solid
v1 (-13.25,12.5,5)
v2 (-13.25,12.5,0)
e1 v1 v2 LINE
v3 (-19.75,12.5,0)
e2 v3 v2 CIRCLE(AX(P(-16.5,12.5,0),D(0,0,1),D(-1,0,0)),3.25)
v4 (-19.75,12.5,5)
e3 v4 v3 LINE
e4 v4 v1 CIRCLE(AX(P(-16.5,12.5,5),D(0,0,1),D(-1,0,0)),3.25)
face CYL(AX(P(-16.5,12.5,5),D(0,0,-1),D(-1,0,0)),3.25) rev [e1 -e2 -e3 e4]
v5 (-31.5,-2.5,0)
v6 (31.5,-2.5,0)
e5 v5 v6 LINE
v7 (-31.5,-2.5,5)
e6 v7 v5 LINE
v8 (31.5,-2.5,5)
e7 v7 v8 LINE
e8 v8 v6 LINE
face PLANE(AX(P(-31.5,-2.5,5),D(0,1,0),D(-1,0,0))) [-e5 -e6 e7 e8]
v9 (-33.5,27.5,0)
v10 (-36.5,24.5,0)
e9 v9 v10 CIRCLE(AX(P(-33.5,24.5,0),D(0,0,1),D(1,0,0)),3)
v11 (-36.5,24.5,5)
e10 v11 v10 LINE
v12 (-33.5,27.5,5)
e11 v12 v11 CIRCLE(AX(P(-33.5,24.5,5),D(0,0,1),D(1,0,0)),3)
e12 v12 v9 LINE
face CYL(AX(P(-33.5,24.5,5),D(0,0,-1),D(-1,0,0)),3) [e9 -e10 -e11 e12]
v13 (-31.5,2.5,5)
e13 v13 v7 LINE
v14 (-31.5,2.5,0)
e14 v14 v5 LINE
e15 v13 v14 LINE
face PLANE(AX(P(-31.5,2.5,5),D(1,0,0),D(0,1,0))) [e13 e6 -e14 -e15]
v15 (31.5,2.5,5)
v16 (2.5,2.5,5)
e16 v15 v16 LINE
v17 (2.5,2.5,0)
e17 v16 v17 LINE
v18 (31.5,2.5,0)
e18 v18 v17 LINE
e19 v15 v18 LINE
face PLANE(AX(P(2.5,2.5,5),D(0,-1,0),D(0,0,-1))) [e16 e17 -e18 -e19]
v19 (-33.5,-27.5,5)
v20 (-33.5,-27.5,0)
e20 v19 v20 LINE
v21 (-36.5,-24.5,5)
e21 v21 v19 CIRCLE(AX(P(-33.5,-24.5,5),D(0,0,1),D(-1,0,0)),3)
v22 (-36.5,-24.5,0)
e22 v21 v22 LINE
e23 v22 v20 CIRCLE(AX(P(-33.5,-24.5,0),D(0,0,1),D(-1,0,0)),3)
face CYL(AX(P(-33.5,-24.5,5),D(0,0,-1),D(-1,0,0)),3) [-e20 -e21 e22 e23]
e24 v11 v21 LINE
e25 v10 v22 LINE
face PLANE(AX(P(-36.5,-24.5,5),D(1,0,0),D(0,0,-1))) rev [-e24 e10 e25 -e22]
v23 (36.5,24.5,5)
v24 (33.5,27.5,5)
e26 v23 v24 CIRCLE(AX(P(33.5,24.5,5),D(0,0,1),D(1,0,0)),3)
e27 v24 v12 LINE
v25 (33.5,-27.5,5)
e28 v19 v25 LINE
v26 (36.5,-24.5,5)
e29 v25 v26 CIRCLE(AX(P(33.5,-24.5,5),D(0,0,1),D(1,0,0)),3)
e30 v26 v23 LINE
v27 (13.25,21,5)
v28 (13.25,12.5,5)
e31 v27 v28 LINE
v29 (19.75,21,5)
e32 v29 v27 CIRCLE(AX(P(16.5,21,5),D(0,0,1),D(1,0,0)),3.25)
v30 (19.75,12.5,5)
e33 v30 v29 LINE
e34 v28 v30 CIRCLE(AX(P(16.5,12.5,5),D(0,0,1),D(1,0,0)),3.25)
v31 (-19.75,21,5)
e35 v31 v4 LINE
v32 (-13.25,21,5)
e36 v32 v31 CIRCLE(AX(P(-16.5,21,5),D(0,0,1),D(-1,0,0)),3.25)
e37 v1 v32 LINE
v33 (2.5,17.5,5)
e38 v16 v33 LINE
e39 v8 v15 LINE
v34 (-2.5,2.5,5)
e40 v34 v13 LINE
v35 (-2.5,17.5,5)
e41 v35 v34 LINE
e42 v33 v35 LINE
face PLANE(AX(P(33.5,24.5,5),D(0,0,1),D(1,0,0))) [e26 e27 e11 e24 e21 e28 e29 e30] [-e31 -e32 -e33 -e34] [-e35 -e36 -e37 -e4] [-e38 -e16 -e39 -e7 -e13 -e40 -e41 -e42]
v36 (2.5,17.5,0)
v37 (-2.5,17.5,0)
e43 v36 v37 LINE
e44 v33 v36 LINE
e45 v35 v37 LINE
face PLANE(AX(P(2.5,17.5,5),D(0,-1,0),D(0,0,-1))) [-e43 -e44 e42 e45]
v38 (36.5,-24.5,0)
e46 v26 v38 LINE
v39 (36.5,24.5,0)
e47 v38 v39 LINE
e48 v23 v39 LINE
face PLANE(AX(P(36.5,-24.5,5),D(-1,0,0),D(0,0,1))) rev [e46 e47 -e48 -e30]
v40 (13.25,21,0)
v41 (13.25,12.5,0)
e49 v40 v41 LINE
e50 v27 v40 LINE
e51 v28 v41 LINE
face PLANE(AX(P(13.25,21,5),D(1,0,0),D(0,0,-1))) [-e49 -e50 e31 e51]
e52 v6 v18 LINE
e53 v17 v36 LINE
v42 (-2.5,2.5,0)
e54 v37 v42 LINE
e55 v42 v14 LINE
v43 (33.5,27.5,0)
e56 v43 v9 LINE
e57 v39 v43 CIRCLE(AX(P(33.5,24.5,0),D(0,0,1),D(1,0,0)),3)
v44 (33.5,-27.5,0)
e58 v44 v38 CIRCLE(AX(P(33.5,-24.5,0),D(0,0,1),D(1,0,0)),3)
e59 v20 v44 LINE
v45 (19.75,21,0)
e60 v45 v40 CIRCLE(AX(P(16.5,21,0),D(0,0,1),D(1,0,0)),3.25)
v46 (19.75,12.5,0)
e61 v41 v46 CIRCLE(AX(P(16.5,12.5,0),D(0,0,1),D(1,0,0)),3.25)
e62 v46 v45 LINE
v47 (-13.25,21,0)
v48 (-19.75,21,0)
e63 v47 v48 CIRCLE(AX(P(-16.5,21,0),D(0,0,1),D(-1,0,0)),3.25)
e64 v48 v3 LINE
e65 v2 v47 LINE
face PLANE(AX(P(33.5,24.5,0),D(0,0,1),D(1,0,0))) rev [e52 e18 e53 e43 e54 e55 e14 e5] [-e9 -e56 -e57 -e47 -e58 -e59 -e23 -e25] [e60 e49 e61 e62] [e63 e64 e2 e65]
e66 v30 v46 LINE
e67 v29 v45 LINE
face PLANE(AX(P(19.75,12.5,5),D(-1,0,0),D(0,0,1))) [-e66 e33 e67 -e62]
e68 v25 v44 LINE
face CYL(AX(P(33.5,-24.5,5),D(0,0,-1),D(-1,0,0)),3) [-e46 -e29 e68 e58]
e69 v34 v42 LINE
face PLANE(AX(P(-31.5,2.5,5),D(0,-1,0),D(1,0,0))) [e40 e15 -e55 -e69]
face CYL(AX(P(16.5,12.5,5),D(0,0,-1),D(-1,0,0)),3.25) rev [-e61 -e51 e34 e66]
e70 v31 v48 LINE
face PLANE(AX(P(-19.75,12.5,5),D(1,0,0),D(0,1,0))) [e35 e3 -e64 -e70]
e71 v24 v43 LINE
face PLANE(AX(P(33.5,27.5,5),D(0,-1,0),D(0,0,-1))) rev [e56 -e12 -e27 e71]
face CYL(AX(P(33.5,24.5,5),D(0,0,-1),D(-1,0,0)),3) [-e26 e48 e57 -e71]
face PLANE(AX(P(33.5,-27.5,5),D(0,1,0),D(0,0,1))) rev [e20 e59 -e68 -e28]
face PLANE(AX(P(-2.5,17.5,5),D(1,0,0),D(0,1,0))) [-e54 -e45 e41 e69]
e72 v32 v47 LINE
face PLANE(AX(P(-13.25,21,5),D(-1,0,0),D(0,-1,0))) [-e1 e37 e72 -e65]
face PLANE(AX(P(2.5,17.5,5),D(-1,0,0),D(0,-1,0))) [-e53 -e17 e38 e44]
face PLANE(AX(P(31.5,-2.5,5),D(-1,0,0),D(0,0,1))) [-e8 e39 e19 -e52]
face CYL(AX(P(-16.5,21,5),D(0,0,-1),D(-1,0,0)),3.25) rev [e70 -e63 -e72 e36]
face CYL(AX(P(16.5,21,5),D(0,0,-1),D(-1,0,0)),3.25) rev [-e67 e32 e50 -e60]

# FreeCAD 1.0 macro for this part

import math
import FreeCAD as App
import Part
import Sketcher


def add_polygon(sketch, points):
    """Adds a closed chain of lines whose ends are joined by coincident constraints."""
    first, n = sketch.GeometryCount, len(points)
    for a, b in zip(points, points[1:] + points[:1]):
        sketch.addGeometry(Part.LineSegment(App.Vector(*a, 0), App.Vector(*b, 0)), False)
    for i in range(n):
        sketch.addConstraint(Sketcher.Constraint("Coincident", first + i, 2, first + (i + 1) % n, 1))

doc = App.newDocument("Part")
body = doc.addObject("PartDesign::Body", "Body")

# Sketch on XY plane
sketch1 = body.newObject("Sketcher::SketchObject", "Sketch")
sketch1.AttachmentSupport = (doc.getObject("XY_Plane"), [""])
sketch1.MapMode = "FlatFace"
sketch1.addGeometry(Part.LineSegment(App.Vector(-33.5, -27.5, 0), App.Vector(33.5, -27.5, 0)), False)  # 0
sketch1.addGeometry(Part.ArcOfCircle(Part.Circle(App.Vector(33.5, -24.5, 0), App.Vector(0, 0, 1), 3), math.radians(-90), math.radians(0)), False)  # 1
sketch1.addGeometry(Part.LineSegment(App.Vector(36.5, -24.5, 0), App.Vector(36.5, 24.5, 0)), False)  # 2
sketch1.addGeometry(Part.ArcOfCircle(Part.Circle(App.Vector(33.5, 24.5, 0), App.Vector(0, 0, 1), 3), math.radians(0), math.radians(90)), False)  # 3
sketch1.addGeometry(Part.LineSegment(App.Vector(33.5, 27.5, 0), App.Vector(-33.5, 27.5, 0)), False)  # 4
sketch1.addGeometry(Part.ArcOfCircle(Part.Circle(App.Vector(-33.5, 24.5, 0), App.Vector(0, 0, 1), 3), math.radians(90), math.radians(180)), False)  # 5
sketch1.addGeometry(Part.LineSegment(App.Vector(-36.5, 24.5, 0), App.Vector(-36.5, -24.5, 0)), False)  # 6
sketch1.addGeometry(Part.ArcOfCircle(Part.Circle(App.Vector(-33.5, -24.5, 0), App.Vector(0, 0, 1), 3), math.radians(180), math.radians(270)), False)  # 7
add_polygon(sketch1, [(-31.5, 2.5), (-2.5, 2.5), (-2.5, 17.5), (2.5, 17.5), (2.5, 2.5), (31.5, 2.5), (31.5, -2.5), (-31.5, -2.5)])  # lines 8-15
sketch1.addGeometry(Part.ArcOfCircle(Part.Circle(App.Vector(16.5, 21, 0), App.Vector(0, 0, 1), 3.25), math.radians(0), math.radians(180)), False)  # 16
sketch1.addGeometry(Part.LineSegment(App.Vector(19.75, 21, 0), App.Vector(19.75, 12.5, 0)), False)  # 17
sketch1.addGeometry(Part.ArcOfCircle(Part.Circle(App.Vector(16.5, 12.5, 0), App.Vector(0, 0, 1), 3.25), math.radians(180), math.radians(360)), False)  # 18
sketch1.addGeometry(Part.LineSegment(App.Vector(13.25, 12.5, 0), App.Vector(13.25, 21, 0)), False)  # 19
sketch1.addGeometry(Part.LineSegment(App.Vector(-13.25, 21, 0), App.Vector(-13.25, 12.5, 0)), False)  # 20
sketch1.addGeometry(Part.ArcOfCircle(Part.Circle(App.Vector(-16.5, 12.5, 0), App.Vector(0, 0, 1), 3.25), math.radians(180), math.radians(360)), False)  # 21
sketch1.addGeometry(Part.LineSegment(App.Vector(-19.75, 12.5, 0), App.Vector(-19.75, 21, 0)), False)  # 22
sketch1.addGeometry(Part.ArcOfCircle(Part.Circle(App.Vector(-16.5, 21, 0), App.Vector(0, 0, 1), 3.25), math.radians(0), math.radians(180)), False)  # 23
sketch1.addConstraint([
    Sketcher.Constraint("Tangent", 0, 2, 1, 1),
    Sketcher.Constraint("Tangent", 1, 2, 2, 1),
    Sketcher.Constraint("Tangent", 2, 2, 3, 1),
    Sketcher.Constraint("Tangent", 3, 2, 4, 1),
    Sketcher.Constraint("Tangent", 4, 2, 5, 1),
    Sketcher.Constraint("Tangent", 5, 2, 6, 1),
    Sketcher.Constraint("Tangent", 6, 2, 7, 1),
    Sketcher.Constraint("Tangent", 7, 2, 0, 1),
    Sketcher.Constraint("Tangent", 16, 1, 17, 1),
    Sketcher.Constraint("Tangent", 17, 2, 18, 2),
    Sketcher.Constraint("Tangent", 18, 1, 19, 1),
    Sketcher.Constraint("Tangent", 19, 2, 16, 2),
    Sketcher.Constraint("Tangent", 20, 2, 21, 2),
    Sketcher.Constraint("Tangent", 21, 1, 22, 1),
    Sketcher.Constraint("Tangent", 22, 2, 23, 2),
    Sketcher.Constraint("Tangent", 23, 1, 20, 1),
    Sketcher.Constraint("Horizontal", 0),
    Sketcher.Constraint("Vertical", 2),
    Sketcher.Constraint("Horizontal", 4),
    Sketcher.Constraint("Vertical", 6),
    Sketcher.Constraint("Horizontal", 8),
    Sketcher.Constraint("Vertical", 9),
    Sketcher.Constraint("Horizontal", 10),
    Sketcher.Constraint("Vertical", 11),
    Sketcher.Constraint("Horizontal", 12),
    Sketcher.Constraint("Vertical", 13),
    Sketcher.Constraint("Horizontal", 14),
    Sketcher.Constraint("Vertical", 15),
    Sketcher.Constraint("Vertical", 17),
    Sketcher.Constraint("Vertical", 19),
    Sketcher.Constraint("Vertical", 20),
    Sketcher.Constraint("Vertical", 22),
    Sketcher.Constraint("Equal", 1, 3),
    Sketcher.Constraint("Equal", 3, 5),
    Sketcher.Constraint("Equal", 5, 7),
    Sketcher.Constraint("Equal", 18, 21),
    Sketcher.Constraint("Symmetric", 1, 3, 5, 3, -1, 1),
    Sketcher.Constraint("Symmetric", 12, 2, 14, 2, -1, 1),
    Sketcher.Constraint("Symmetric", 18, 3, 21, 3, -2),
    Sketcher.Constraint("Symmetric", 8, 2, 11, 2, -2),
    Sketcher.Constraint("Horizontal", 16, 3, 23, 3),
    Sketcher.Constraint("Equal", 10, 13),
    Sketcher.Constraint("Radius", 1, 3.0),
    Sketcher.Constraint("DistanceX", 0, 1, 0, 2, 67.0),
    Sketcher.Constraint("DistanceX", 8, 1, 8, 2, 29.0),
    Sketcher.Constraint("DistanceX", 10, 1, 10, 2, 5.0),
    Sketcher.Constraint("DistanceY", 2, 1, 2, 2, 49.0),
    Sketcher.Constraint("DistanceY", 9, 1, 9, 2, 15.0),
    Sketcher.Constraint("Radius", 16, 3.25),
    Sketcher.Constraint("DistanceY", 17, 2, 17, 1, 8.5),
    Sketcher.Constraint("DistanceY", -1, 1, 16, 3, 21.0),
    Sketcher.Constraint("DistanceX", 16, 3, 3, 3, 17.0),
])
pad1 = body.newObject("PartDesign::Pad", "Pad")
pad1.Profile = sketch1
pad1.Length = 5

doc.recompute()
